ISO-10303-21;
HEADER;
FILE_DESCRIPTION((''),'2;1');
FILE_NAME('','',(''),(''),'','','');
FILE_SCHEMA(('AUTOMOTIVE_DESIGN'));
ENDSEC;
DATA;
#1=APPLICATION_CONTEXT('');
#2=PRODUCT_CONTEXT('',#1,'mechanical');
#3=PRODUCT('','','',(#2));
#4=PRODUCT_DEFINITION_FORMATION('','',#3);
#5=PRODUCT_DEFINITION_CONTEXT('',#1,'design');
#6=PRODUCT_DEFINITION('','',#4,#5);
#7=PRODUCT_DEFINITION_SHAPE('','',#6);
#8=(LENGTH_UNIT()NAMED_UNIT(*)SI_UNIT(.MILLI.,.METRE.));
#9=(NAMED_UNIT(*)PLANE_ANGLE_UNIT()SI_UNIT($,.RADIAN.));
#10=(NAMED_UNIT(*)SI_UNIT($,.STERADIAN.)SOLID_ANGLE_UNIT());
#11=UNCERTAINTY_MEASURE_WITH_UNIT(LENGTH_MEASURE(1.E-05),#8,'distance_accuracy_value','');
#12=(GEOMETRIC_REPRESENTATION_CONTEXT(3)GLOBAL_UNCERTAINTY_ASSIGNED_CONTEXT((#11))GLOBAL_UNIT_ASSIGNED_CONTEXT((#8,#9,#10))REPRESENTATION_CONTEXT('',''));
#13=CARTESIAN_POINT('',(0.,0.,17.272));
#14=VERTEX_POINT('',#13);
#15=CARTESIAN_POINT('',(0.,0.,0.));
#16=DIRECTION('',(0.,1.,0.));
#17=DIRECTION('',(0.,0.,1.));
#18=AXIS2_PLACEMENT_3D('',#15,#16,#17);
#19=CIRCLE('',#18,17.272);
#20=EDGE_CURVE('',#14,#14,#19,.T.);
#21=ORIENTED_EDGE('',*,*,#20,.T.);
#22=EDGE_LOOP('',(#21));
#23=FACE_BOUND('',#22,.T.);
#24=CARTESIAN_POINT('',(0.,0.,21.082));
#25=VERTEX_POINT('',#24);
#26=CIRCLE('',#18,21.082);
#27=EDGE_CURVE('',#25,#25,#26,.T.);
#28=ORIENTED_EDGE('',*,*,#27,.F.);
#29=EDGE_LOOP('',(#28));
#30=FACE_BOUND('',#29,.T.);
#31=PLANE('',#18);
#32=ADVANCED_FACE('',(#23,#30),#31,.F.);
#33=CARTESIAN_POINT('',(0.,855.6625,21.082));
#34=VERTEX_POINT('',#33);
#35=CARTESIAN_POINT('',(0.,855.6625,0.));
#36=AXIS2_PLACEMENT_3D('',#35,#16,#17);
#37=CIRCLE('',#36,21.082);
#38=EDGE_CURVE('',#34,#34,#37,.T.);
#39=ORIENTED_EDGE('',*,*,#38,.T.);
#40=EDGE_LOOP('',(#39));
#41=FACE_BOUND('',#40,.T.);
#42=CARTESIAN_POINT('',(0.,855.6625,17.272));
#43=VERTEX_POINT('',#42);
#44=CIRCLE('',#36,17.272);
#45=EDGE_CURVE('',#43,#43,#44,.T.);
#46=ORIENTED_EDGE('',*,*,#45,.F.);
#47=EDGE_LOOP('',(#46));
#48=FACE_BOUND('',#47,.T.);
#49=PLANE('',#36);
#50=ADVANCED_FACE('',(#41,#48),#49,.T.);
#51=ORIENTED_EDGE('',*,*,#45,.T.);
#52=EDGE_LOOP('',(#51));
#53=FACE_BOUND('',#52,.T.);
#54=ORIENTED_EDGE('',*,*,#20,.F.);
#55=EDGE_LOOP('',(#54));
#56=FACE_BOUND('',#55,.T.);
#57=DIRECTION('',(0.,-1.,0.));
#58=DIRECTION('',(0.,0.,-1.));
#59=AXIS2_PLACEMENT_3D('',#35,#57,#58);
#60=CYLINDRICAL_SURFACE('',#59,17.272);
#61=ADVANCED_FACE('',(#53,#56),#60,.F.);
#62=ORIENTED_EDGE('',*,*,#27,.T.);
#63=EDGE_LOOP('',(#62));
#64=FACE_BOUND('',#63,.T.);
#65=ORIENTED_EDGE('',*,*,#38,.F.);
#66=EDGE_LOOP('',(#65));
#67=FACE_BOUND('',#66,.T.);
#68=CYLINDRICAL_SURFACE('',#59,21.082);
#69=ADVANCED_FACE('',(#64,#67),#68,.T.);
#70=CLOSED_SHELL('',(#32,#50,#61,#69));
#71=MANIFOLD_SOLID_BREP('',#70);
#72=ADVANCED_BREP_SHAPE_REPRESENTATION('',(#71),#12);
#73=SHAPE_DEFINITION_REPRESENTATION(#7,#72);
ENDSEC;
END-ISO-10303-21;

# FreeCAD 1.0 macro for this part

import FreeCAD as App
import Part
import Sketcher
from FreeCAD import Vector
Q = App.Units.Quantity

doc = App.newDocument("Part")
params = doc.addObject("Spreadsheet::Sheet", "Params")
for row, (alias, value) in enumerate([
    ("sketch1_diameter", "1.66 in"),
    ("sketch1_diameter2", "1.36 in"),
    ("pad1_length", "33.6875 in"),
], start=1):
    params.set(f"A{row}", alias)
    params.set(f"B{row}", "=" + value)
    params.setAlias(f"B{row}", alias)

body = doc.addObject("PartDesign::Body", "Body")

# Sketch on XZ plane
sketch1 = body.newObject("Sketcher::SketchObject", "Sketch")
sketch1.AttachmentSupport = (doc.getObject("XZ_Plane"), [""])
sketch1.MapMode = "FlatFace"
sketch1.addGeometry([
    Part.Circle(Vector(0, 0, 0), Vector(0, 0, 1), 21),
    Part.Circle(Vector(0, 0, 0), Vector(0, 0, 1), 17),
], False)
sketch1.addConstraint([
    Sketcher.Constraint("Coincident", 0, 3, -1, 1),
    Sketcher.Constraint("Coincident", 1, 3, -1, 1),
    Sketcher.Constraint("Diameter", 0, Q("1.66 in")),
    Sketcher.Constraint("Diameter", 1, Q("1.36 in")),
])
sketch1.setExpression("Constraints[2]", "Params.sketch1_diameter")
sketch1.setExpression("Constraints[3]", "Params.sketch1_diameter2")
pad1 = body.newObject("PartDesign::Pad", "Pad")
pad1.Profile = sketch1
pad1.setExpression("Length", "Params.pad1_length")
pad1.Reversed = True

doc.recompute()
